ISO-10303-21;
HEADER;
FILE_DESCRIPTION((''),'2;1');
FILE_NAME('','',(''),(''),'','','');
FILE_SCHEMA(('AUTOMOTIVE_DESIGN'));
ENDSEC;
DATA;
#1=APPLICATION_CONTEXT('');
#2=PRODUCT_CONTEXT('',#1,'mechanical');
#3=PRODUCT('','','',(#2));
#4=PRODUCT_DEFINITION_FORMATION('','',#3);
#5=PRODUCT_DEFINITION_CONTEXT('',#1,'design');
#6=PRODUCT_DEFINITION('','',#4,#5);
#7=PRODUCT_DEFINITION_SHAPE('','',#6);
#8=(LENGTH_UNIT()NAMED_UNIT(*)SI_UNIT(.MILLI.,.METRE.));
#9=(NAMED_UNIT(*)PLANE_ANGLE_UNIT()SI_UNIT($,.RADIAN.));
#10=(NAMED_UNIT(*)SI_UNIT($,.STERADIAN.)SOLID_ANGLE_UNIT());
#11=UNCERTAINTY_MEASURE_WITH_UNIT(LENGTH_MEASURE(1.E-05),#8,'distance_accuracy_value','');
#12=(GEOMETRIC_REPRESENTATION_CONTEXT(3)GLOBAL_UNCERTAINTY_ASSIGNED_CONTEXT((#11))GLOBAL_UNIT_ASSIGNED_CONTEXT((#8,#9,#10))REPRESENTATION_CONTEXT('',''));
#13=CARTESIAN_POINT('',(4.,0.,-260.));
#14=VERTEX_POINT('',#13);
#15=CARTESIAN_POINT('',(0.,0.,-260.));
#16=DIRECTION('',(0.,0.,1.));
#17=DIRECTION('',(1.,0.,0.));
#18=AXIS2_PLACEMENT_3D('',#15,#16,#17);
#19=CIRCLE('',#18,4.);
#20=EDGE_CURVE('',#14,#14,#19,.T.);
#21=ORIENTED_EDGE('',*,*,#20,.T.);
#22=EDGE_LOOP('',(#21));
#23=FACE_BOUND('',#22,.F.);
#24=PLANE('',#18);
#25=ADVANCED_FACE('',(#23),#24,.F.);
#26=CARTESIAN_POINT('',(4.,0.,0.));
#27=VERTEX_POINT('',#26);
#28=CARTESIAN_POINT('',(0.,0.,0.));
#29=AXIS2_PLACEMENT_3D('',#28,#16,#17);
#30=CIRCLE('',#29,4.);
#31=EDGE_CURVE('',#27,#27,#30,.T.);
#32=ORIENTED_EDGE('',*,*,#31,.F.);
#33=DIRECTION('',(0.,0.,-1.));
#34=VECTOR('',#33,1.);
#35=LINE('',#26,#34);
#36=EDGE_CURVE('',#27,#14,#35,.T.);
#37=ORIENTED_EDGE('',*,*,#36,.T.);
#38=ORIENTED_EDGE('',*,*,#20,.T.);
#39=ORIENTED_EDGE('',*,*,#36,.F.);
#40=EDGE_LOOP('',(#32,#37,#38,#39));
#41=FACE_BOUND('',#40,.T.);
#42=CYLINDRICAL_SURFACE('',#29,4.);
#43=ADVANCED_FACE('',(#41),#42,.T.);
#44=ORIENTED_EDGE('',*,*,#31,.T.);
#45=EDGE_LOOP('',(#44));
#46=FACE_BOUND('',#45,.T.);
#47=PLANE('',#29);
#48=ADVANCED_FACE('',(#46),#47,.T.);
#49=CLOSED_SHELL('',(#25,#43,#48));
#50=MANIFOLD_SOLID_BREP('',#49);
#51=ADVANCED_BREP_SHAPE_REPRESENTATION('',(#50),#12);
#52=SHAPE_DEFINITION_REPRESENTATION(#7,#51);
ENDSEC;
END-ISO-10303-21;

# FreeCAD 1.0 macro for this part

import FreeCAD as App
import Part
import Sketcher

V = App.Vector
Q = App.Units.Quantity

doc = App.newDocument("Part")
params = doc.addObject("Spreadsheet::Sheet", "Params")
for row, (alias, value) in enumerate([
    ("sketch1_diameter", "8 mm"),
    ("pad1_length", "260 mm"),
], start=1):
    params.set(f"A{row}", alias)
    params.set(f"B{row}", "=" + value)
    params.setAlias(f"B{row}", alias)

body = doc.addObject("PartDesign::Body", "Body")

# Sketch on XY plane
sketch1 = body.newObject("Sketcher::SketchObject", "Sketch")
sketch1.AttachmentSupport = (doc.getObject("XY_Plane"), [""])
sketch1.MapMode = "FlatFace"
sketch1.addGeometry(Part.Circle(V(0, 0, 0), V(0, 0, 1), 4), False)
sketch1.addConstraint([
    Sketcher.Constraint("Coincident", 0, 3, -1, 1),
    Sketcher.Constraint("Diameter", 0, Q("8 mm")),
])
sketch1.setExpression("Constraints[1]", "Params.sketch1_diameter")
pad1 = body.newObject("PartDesign::Pad", "Pad")
pad1.Profile = sketch1
pad1.setExpression("Length", "Params.pad1_length")
pad1.Reversed = True

doc.recompute()
